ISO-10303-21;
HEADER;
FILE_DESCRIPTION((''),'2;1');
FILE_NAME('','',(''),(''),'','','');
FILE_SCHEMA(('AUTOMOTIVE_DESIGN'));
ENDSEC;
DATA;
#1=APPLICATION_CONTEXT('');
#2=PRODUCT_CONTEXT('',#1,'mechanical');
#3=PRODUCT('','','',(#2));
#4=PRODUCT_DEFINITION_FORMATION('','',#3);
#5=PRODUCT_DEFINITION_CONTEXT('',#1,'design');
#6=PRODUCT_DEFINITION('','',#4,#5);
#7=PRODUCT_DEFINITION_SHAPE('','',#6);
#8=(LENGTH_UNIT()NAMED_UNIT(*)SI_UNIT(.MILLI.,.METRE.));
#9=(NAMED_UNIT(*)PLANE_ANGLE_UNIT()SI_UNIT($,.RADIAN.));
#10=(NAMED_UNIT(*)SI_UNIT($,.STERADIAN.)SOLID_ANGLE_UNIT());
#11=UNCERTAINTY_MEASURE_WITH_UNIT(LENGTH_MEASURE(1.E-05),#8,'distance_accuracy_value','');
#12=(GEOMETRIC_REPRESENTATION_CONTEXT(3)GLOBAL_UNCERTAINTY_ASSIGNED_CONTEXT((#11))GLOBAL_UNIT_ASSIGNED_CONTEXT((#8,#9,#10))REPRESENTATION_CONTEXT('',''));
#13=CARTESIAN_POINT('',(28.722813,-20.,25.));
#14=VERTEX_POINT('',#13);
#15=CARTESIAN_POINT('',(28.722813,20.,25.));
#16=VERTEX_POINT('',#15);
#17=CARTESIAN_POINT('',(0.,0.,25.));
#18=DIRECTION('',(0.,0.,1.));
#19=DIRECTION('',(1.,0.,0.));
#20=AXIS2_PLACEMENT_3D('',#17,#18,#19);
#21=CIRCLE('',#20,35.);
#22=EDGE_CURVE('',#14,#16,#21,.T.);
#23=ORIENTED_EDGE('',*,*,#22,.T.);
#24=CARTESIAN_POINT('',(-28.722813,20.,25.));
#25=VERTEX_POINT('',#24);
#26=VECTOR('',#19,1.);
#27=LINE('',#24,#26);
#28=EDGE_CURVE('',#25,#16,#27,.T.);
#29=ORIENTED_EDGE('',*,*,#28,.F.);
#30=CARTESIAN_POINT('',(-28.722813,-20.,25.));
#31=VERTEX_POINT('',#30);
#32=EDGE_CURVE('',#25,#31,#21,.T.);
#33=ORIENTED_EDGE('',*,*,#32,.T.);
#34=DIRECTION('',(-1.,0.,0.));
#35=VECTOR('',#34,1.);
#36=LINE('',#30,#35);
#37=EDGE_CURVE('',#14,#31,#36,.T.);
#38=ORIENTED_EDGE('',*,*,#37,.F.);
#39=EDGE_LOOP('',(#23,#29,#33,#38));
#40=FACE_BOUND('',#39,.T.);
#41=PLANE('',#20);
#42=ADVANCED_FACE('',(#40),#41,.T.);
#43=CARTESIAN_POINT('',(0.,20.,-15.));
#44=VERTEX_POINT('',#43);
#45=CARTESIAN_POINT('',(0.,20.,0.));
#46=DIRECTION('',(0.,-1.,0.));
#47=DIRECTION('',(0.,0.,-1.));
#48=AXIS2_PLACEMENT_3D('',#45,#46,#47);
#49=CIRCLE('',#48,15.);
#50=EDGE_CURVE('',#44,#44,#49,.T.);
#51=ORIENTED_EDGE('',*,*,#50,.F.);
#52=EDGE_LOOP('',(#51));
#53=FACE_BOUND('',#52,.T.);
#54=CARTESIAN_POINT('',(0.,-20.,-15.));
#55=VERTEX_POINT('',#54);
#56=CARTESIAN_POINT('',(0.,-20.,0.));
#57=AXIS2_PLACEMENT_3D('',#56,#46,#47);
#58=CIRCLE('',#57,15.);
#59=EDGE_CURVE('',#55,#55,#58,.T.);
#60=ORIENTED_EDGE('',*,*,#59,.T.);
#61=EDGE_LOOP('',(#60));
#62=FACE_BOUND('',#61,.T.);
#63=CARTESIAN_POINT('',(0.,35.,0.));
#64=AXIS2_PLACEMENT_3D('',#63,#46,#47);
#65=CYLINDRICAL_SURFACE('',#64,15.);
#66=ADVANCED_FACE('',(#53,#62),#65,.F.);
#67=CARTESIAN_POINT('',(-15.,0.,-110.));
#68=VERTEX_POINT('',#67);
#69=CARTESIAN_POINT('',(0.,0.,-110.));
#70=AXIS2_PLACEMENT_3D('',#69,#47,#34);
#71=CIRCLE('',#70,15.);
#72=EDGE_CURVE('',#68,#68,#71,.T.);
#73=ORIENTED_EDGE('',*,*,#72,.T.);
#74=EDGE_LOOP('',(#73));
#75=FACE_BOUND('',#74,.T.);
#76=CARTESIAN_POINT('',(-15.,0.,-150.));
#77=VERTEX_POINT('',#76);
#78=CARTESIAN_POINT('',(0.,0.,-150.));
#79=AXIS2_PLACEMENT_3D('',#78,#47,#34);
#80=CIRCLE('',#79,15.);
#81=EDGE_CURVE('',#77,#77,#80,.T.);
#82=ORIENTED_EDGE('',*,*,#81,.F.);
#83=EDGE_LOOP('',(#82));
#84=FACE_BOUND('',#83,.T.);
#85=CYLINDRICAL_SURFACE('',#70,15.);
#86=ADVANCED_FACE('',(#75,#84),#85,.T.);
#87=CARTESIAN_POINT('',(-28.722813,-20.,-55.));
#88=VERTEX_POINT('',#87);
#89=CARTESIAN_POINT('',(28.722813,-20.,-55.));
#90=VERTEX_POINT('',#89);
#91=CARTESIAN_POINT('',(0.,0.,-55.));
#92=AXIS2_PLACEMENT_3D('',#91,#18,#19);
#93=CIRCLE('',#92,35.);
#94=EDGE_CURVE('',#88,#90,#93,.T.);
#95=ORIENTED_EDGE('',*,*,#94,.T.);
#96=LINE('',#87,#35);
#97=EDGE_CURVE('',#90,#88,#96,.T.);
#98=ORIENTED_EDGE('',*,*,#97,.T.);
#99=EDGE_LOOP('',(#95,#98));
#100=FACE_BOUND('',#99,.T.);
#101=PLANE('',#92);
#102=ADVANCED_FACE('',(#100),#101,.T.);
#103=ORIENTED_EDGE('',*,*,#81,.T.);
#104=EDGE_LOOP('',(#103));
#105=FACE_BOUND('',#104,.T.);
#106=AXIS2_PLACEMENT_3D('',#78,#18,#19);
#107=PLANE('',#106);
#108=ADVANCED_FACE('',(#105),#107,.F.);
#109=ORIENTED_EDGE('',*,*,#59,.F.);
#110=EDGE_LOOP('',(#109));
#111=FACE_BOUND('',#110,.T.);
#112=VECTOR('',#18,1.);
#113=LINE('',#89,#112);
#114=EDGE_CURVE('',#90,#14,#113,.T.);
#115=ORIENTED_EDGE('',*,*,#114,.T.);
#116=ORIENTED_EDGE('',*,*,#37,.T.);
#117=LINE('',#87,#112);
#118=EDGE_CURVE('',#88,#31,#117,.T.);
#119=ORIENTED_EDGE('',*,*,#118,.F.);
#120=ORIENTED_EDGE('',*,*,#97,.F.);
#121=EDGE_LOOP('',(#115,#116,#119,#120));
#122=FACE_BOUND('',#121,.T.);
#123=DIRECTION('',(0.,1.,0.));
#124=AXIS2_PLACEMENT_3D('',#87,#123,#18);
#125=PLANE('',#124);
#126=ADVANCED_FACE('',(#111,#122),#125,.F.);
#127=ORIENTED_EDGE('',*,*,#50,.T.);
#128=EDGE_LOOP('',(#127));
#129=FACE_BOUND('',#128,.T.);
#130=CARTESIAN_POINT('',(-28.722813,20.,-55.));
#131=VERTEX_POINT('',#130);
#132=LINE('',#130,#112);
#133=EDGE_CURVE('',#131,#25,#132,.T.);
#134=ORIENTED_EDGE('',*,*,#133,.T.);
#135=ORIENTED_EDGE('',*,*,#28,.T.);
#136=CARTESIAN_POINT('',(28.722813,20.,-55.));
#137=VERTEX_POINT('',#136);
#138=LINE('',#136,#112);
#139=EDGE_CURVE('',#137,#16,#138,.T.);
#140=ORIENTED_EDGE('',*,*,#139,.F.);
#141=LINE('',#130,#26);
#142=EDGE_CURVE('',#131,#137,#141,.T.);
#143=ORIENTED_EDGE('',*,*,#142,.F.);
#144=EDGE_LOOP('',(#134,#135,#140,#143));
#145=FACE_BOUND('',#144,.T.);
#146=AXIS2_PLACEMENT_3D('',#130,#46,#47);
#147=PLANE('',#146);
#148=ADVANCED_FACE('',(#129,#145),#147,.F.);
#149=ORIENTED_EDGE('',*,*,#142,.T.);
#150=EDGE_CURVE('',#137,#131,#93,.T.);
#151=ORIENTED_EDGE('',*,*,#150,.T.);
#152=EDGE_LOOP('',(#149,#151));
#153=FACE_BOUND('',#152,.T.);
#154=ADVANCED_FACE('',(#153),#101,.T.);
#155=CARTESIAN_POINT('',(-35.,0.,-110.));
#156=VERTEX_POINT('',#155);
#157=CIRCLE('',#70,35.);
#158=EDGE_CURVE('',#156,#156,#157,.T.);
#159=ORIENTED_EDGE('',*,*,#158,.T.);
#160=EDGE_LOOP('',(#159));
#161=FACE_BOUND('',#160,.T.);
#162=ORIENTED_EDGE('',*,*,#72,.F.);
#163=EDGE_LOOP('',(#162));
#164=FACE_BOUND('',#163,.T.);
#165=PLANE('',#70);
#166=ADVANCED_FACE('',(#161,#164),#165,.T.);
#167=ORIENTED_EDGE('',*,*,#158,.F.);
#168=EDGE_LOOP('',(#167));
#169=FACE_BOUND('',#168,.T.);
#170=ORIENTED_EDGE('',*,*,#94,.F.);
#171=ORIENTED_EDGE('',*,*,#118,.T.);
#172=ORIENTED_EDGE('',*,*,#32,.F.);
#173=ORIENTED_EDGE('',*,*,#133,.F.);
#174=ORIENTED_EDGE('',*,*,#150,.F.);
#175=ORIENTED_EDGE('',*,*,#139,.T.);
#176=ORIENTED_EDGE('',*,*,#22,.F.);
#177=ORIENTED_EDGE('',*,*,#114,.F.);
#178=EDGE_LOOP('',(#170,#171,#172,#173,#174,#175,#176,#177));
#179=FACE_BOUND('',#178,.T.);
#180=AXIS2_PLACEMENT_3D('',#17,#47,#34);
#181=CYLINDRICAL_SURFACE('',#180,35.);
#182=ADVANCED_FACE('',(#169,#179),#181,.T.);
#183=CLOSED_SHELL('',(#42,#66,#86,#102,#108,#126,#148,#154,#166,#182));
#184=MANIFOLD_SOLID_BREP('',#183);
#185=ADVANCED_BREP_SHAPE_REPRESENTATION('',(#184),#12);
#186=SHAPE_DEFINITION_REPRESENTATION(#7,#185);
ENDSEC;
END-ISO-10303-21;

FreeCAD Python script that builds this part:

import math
import FreeCAD as App
import Part
import Sketcher

doc = App.newDocument("Part")
body = doc.addObject("PartDesign::Body", "Body")

sketch1 = doc.addObject("Sketcher::SketchObject", "Sketch")
body.addObject(sketch1)
sketch1.AttachmentSupport = (doc.XY_Plane, [""])
sketch1.MapMode = "FlatFace"
sketch1.addGeometry(Part.Circle(App.Vector(0, 0, 0), App.Vector(0, 0, 1), 35), False)
sketch1.addConstraint([
    Sketcher.Constraint("Coincident", 0, 3, -1, 1),
    Sketcher.Constraint("Diameter", 0, 70.0),
])
pad1 = doc.addObject("PartDesign::Pad", "Pad")
body.addObject(pad1)
pad1.Profile = sketch1
pad1.Type = "TwoLengths"
pad1.Length = 25
pad1.Length2 = 150

sketch2 = doc.addObject("Sketcher::SketchObject", "Sketch001")
body.addObject(sketch2)
sketch2.AttachmentSupport = (doc.XY_Plane, [""])
sketch2.MapMode = "FlatFace"
sketch2.AttachmentOffset = App.Placement(App.Vector(0, 0, -150), App.Rotation())
sketch2.addGeometry([
    Part.Circle(App.Vector(0, 0, 0), App.Vector(0, 0, 1), 35),
    Part.Circle(App.Vector(0, 0, 0), App.Vector(0, 0, 1), 15),
], False)
sketch2.addConstraint([
    Sketcher.Constraint("Coincident", 0, 3, -1, 1),
    Sketcher.Constraint("Coincident", 1, 3, -1, 1),
    Sketcher.Constraint("Diameter", 0, 70.0),
    Sketcher.Constraint("Diameter", 1, 30.0),
])
pocket1 = doc.addObject("PartDesign::Pocket", "Pocket")
body.addObject(pocket1)
pocket1.Profile = sketch2
pocket1.Length = 40
pocket1.Reversed = True

sketch3 = doc.addObject("Sketcher::SketchObject", "Sketch002")
body.addObject(sketch3)
sketch3.AttachmentSupport = (doc.XY_Plane, [""])
sketch3.MapMode = "FlatFace"
sketch3.AttachmentOffset = App.Placement(App.Vector(0, 0, -55), App.Rotation())
sketch3.addGeometry([
    Part.LineSegment(App.Vector(-28.722813, 20, 0), App.Vector(28.722813, 20, 0)),
    Part.ArcOfCircle(Part.Circle(App.Vector(0, 0, 0), App.Vector(0, 0, 1), 35), math.radians(34.849905), math.radians(145.150095)),
    Part.LineSegment(App.Vector(28.722813, -20, 0), App.Vector(-28.722813, -20, 0)),
    Part.ArcOfCircle(Part.Circle(App.Vector(0, 0, 0), App.Vector(0, 0, 1), 35), math.radians(-145.150095), math.radians(-34.849905)),
], False)
sketch3.addConstraint([
    Sketcher.Constraint("Coincident", 0, 1, 1, 2),
    Sketcher.Constraint("Coincident", 1, 1, 0, 2),
    Sketcher.Constraint("Coincident", 2, 1, 3, 2),
    Sketcher.Constraint("Coincident", 3, 1, 2, 2),
    Sketcher.Constraint("Horizontal", 0),
    Sketcher.Constraint("Horizontal", 2),
    Sketcher.Constraint("Coincident", 1, 3, -1, 1),
    Sketcher.Constraint("Coincident", 3, 3, -1, 1),
    Sketcher.Constraint("Equal", 1, 3),
    Sketcher.Constraint("Vertical", 1, 1, 2, 1),
    Sketcher.Constraint("Radius", 1, 35.0),
    Sketcher.Constraint("DistanceY", -1, 1, 0, 1, 20.0),
])
pocket2 = doc.addObject("PartDesign::Pocket", "Pocket001")
body.addObject(pocket2)
pocket2.Profile = sketch3
pocket2.Length = 80
pocket2.Reversed = True

sketch4 = doc.addObject("Sketcher::SketchObject", "Sketch003")
body.addObject(sketch4)
sketch4.AttachmentSupport = (doc.XZ_Plane, [""])
sketch4.MapMode = "FlatFace"
sketch4.AttachmentOffset = App.Placement(App.Vector(0, 0, 20), App.Rotation())
sketch4.addGeometry(Part.Circle(App.Vector(0, 0, 0), App.Vector(0, 0, 1), 15), False)
sketch4.addConstraint([
    Sketcher.Constraint("Coincident", 0, 3, -1, 1),
    Sketcher.Constraint("Diameter", 0, 30.0),
])
pocket3 = doc.addObject("PartDesign::Pocket", "Pocket002")
body.addObject(pocket3)
pocket3.Profile = sketch4
pocket3.Type = "ThroughAll"

doc.recompute()
